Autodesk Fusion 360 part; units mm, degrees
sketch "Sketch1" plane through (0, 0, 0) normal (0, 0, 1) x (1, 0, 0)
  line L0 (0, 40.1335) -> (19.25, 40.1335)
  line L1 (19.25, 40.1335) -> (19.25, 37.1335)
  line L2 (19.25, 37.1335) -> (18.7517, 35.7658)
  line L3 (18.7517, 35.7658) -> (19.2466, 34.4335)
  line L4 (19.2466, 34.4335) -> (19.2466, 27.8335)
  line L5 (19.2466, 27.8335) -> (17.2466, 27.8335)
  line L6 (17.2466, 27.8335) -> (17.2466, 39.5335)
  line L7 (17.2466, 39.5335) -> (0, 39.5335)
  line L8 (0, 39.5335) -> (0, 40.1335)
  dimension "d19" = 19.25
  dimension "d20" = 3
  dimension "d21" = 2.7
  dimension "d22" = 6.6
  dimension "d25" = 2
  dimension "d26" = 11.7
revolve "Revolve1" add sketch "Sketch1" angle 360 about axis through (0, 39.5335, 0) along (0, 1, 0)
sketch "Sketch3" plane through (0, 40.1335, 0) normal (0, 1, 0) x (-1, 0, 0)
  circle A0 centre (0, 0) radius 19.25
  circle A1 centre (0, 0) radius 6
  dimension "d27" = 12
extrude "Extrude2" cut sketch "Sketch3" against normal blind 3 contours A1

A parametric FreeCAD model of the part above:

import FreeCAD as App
import Part
import Sketcher

doc = App.newDocument("Part")
body = doc.addObject("PartDesign::Body", "Body")

# Sketch on XY plane
sketch1 = body.newObject("Sketcher::SketchObject", "Sketch")
sketch1.AttachmentSupport = (doc.getObject("XY_Plane"), [""])
sketch1.MapMode = "FlatFace"
sketch1.addGeometry(Part.LineSegment(App.Vector(19.2, 40.1, 0), App.Vector(0, 40.1, 0)), False)
sketch1.addGeometry(Part.LineSegment(App.Vector(0, 40.1, 0), App.Vector(0, 39.5, 0)), False)
sketch1.addGeometry(Part.LineSegment(App.Vector(0, 39.5, 0), App.Vector(17.2, 39.5, 0)), False)
sketch1.addGeometry(Part.LineSegment(App.Vector(17.2, 39.5, 0), App.Vector(17.2, 27.8, 0)), False)
sketch1.addGeometry(Part.LineSegment(App.Vector(17.2, 27.8, 0), App.Vector(19.2, 27.8, 0)), False)
sketch1.addGeometry(Part.LineSegment(App.Vector(19.2, 27.8, 0), App.Vector(19.2, 34.4, 0)), False)
sketch1.addGeometry(Part.LineSegment(App.Vector(19.2, 34.4, 0), App.Vector(18.8, 35.8, 0)), False)
sketch1.addGeometry(Part.LineSegment(App.Vector(18.8, 35.8, 0), App.Vector(19.2, 37.1, 0)), False)
sketch1.addGeometry(Part.LineSegment(App.Vector(19.2, 37.1, 0), App.Vector(19.2, 40.1, 0)), False)
sketch1.addConstraint(Sketcher.Constraint("Coincident", 0, 2, 1, 1))
sketch1.addConstraint(Sketcher.Constraint("Coincident", 1, 2, 2, 1))
sketch1.addConstraint(Sketcher.Constraint("Coincident", 2, 2, 3, 1))
sketch1.addConstraint(Sketcher.Constraint("Coincident", 3, 2, 4, 1))
sketch1.addConstraint(Sketcher.Constraint("Coincident", 4, 2, 5, 1))
sketch1.addConstraint(Sketcher.Constraint("Coincident", 5, 2, 6, 1))
sketch1.addConstraint(Sketcher.Constraint("Coincident", 6, 2, 7, 1))
sketch1.addConstraint(Sketcher.Constraint("Coincident", 7, 2, 8, 1))
sketch1.addConstraint(Sketcher.Constraint("Coincident", 8, 2, 0, 1))
sketch1.addConstraint(Sketcher.Constraint("Horizontal", 0))
sketch1.addConstraint(Sketcher.Constraint("Vertical", 1))
sketch1.addConstraint(Sketcher.Constraint("Horizontal", 2))
sketch1.addConstraint(Sketcher.Constraint("Vertical", 3))
sketch1.addConstraint(Sketcher.Constraint("Horizontal", 4))
sketch1.addConstraint(Sketcher.Constraint("Vertical", 5))
sketch1.addConstraint(Sketcher.Constraint("Vertical", 8))
sketch1.addConstraint(Sketcher.Constraint("PointOnObject", 0, 2, -2))
sketch1.addConstraint(Sketcher.Constraint("DistanceX", 4, 1, 4, 2, 2.0))
sketch1.addConstraint(Sketcher.Constraint("DistanceY", 8, 1, 8, 2, 3.0))
sketch1.addConstraint(Sketcher.Constraint("DistanceY", 3, 2, 3, 1, 11.7))
sketch1.addConstraint(Sketcher.Constraint("DistanceY", 5, 1, 5, 2, 6.6))
sketch1.addConstraint(Sketcher.Constraint("DistanceX", 0, 2, 0, 1, 19.25))
sketch1.addConstraint(Sketcher.Constraint("DistanceY", 5, 2, 7, 2, 2.7))
sketch1.addConstraint(Sketcher.Constraint("DistanceX", 2, 1, 2, 2, 17.2466))
sketch1.addConstraint(Sketcher.Constraint("DistanceX", 6, 2, 5, 2, 0.495))
sketch1.addConstraint(Sketcher.Constraint("Distance", 6, 1.4212))
sketch1.addConstraint(Sketcher.Constraint("DistanceY", -1, 1, 0, 2, 40.1335))
revolution = body.newObject("PartDesign::Revolution", "Revolution")
revolution.Profile = sketch1
revolution.ReferenceAxis = (sketch1, ["V_Axis"])
revolution.Angle = 360

# Sketch on XZ plane
sketch2 = body.newObject("Sketcher::SketchObject", "Sketch001")
sketch2.AttachmentSupport = (doc.getObject("XZ_Plane"), [""])
sketch2.MapMode = "FlatFace"
sketch2.AttachmentOffset = App.Placement(App.Vector(0, 0, -40.1335), App.Rotation())
sketch2.addGeometry(Part.Circle(App.Vector(0, 0, 0), App.Vector(0, 0, 1), 6), False)
sketch2.addConstraint(Sketcher.Constraint("Coincident", 0, 3, -1, 1))
sketch2.addConstraint(Sketcher.Constraint("Diameter", 0, 12.0))
pocket1 = body.newObject("PartDesign::Pocket", "Pocket")
pocket1.Profile = sketch2
pocket1.Length = 3
pocket1.Reversed = True

doc.recompute()
